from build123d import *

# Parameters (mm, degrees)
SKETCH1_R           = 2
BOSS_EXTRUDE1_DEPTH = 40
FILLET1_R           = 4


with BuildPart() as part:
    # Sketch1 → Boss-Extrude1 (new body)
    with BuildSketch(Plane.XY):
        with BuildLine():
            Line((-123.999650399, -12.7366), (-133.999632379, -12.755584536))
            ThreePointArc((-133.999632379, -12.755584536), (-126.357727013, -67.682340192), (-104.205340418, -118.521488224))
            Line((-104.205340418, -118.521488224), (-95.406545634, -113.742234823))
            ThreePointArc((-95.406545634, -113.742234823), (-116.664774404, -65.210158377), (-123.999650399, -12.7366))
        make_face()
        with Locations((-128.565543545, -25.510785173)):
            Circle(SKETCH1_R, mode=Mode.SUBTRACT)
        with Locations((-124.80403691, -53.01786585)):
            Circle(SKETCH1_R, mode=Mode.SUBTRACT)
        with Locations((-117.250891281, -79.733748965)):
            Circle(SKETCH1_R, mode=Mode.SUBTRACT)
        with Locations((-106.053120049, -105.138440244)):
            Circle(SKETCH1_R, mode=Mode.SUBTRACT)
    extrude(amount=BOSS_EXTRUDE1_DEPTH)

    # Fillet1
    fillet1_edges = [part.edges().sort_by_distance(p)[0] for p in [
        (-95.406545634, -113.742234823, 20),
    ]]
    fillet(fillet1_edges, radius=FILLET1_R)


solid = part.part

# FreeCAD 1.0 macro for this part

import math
import FreeCAD as App
import Part
import Sketcher


def edges_at(feature, points):
    """Names of the edges that pass closest to the given points."""
    edges = feature.Shape.Edges
    near = lambda p: min(range(len(edges)), key=lambda i: edges[i].distToShape(Part.Vertex(*p))[0])
    return sorted({f"Edge{near(p) + 1}" for p in points})

doc = App.newDocument("Part")
body = doc.addObject("PartDesign::Body", "Body")

sketch1 = body.newObject("Sketcher::SketchObject", "Sketch")
sketch1.AttachmentSupport = (doc.getObject("XY_Plane"), [""])
sketch1.MapMode = "FlatFace"
sketch1.addGeometry(Part.LineSegment(App.Vector(-124, -12.7, 0), App.Vector(-134, -12.8, 0)), False)
sketch1.addGeometry(Part.ArcOfCircle(Part.Circle(App.Vector(70, -12.4, 0), App.Vector(0, 0, 1), 204), math.radians(-180), math.radians(-149)), False)
sketch1.addGeometry(Part.LineSegment(App.Vector(-104.2, -118.5, 0), App.Vector(-95.4, -113.7, 0)), False)
sketch1.addGeometry(Part.ArcOfCircle(Part.Circle(App.Vector(70, -12.4, 0), App.Vector(0, 0, 1), 194), math.radians(-180), math.radians(-148)), False)
sketch1.addGeometry(Part.Circle(App.Vector(-106.1, -105.1, 0), App.Vector(0, 0, 1), 2), False)
sketch1.addGeometry(Part.Circle(App.Vector(-117.3, -79.7, 0), App.Vector(0, 0, 1), 2), False)
sketch1.addGeometry(Part.Circle(App.Vector(-124.8, -53, 0), App.Vector(0, 0, 1), 2), False)
sketch1.addGeometry(Part.Circle(App.Vector(-128.6, -25.5, 0), App.Vector(0, 0, 1), 2), False)
sketch1.addConstraint(Sketcher.Constraint("Coincident", 0, 2, 1, 1))
sketch1.addConstraint(Sketcher.Constraint("Coincident", 1, 2, 2, 1))
sketch1.addConstraint(Sketcher.Constraint("Coincident", 2, 2, 3, 2))
sketch1.addConstraint(Sketcher.Constraint("Coincident", 3, 1, 0, 1))
sketch1.addConstraint(Sketcher.Constraint("Coincident", 3, 3, 1, 3))
sketch1.addConstraint(Sketcher.Constraint("Equal", 4, 5))
sketch1.addConstraint(Sketcher.Constraint("Equal", 5, 6))
sketch1.addConstraint(Sketcher.Constraint("Equal", 6, 7))
sketch1.addConstraint(Sketcher.Constraint("Diameter", 4, 4.0))
sketch1.addConstraint(Sketcher.Constraint("Radius", 1, 204.0))
sketch1.addConstraint(Sketcher.Constraint("Radius", 3, 194.0))
sketch1.addConstraint(Sketcher.Constraint("DistanceX", -1, 1, 1, 3, 70.0))
sketch1.addConstraint(Sketcher.Constraint("DistanceY", 1, 3, -1, 1, 12.3683))
sketch1.addConstraint(Sketcher.Constraint("DistanceY", 3, 1, -1, 1, 12.7366))
sketch1.addConstraint(Sketcher.Constraint("DistanceY", 7, 3, 0, 2, 12.755201))
sketch1.addConstraint(Sketcher.Constraint("DistanceX", 4, 3, -1, 1, 106.05312))
sketch1.addConstraint(Sketcher.Constraint("DistanceY", 4, 3, -1, 1, 105.13844))
sketch1.addConstraint(Sketcher.Constraint("DistanceX", 5, 3, -1, 1, 117.250891))
sketch1.addConstraint(Sketcher.Constraint("DistanceY", 5, 3, -1, 1, 79.733749))
sketch1.addConstraint(Sketcher.Constraint("DistanceX", 1, 2, -1, 1, 104.20534))
sketch1.addConstraint(Sketcher.Constraint("DistanceY", 6, 3, 7, 3, 27.507081))
sketch1.addConstraint(Sketcher.Constraint("DistanceX", 0, 2, 7, 3, 5.434089))
sketch1.addConstraint(Sketcher.Constraint("DistanceX", 6, 3, 2, 2, 29.397491))
sketch1.addConstraint(Sketcher.Constraint("DistanceY", 2, 2, 6, 3, 60.724369))
sketch1.addConstraint(Sketcher.Constraint("Distance", 2, 10.012994))
pad1 = body.newObject("PartDesign::Pad", "Pad")
pad1.Profile = sketch1
pad1.Length = 40
doc.recompute()

fillet = body.newObject("PartDesign::Fillet", "Fillet")
fillet.Base = (pad1, edges_at(pad1, [(-95.407, -113.742, 20)]))
fillet.Radius = 4

doc.recompute()
